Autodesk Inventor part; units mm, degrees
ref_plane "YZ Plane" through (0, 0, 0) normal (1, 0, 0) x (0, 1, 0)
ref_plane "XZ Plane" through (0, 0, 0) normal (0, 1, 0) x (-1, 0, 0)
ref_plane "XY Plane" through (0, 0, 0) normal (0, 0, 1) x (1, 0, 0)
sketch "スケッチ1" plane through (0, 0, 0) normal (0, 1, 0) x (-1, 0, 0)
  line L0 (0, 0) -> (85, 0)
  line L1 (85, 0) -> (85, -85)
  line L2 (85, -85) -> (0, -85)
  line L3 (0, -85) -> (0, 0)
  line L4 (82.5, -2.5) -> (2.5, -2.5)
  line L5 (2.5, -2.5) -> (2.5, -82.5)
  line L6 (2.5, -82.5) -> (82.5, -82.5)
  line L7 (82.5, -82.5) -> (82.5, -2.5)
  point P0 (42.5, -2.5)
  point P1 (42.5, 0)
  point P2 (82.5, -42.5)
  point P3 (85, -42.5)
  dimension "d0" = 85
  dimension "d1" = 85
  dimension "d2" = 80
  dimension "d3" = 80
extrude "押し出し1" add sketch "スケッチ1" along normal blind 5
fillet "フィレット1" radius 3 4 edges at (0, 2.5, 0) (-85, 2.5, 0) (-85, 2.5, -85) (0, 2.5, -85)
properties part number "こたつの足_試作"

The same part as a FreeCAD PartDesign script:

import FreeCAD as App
import Part
import Sketcher
from FreeCAD import Vector
Q = App.Units.Quantity


def edges_at(feature, points):
    """Names of the edges that pass closest to the given points."""
    edges = feature.Shape.Edges
    near = lambda p: min(range(len(edges)), key=lambda i: edges[i].distToShape(Part.Vertex(*p))[0])
    return sorted({f"Edge{near(p) + 1}" for p in points})

doc = App.newDocument("Part")
body = doc.addObject("PartDesign::Body", "Body")

sketch1 = body.newObject("Sketcher::SketchObject", "Sketch")
sketch1.AttachmentSupport = (doc.getObject("XZ_Plane"), [""])
sketch1.MapMode = "FlatFace"
sketch1.addGeometry([
    Part.LineSegment(Vector(-85, 0, 0), Vector(0, 0, 0)),
    Part.LineSegment(Vector(0, 0, 0), Vector(0, -85, 0)),
    Part.LineSegment(Vector(0, -85, 0), Vector(-85, -85, 0)),
    Part.LineSegment(Vector(-85, -85, 0), Vector(-85, 0, 0)),
    Part.LineSegment(Vector(-2, -2, 0), Vector(-82, -2, 0)),
    Part.LineSegment(Vector(-82, -2, 0), Vector(-82, -82, 0)),
    Part.LineSegment(Vector(-82, -82, 0), Vector(-2, -82, 0)),
    Part.LineSegment(Vector(-2, -82, 0), Vector(-2, -2, 0)),
], False)
sketch1.addConstraint([
    Sketcher.Constraint("Coincident", 0, 2, 1, 1),
    Sketcher.Constraint("Coincident", 1, 2, 2, 1),
    Sketcher.Constraint("Coincident", 2, 2, 3, 1),
    Sketcher.Constraint("Coincident", 3, 2, 0, 1),
    Sketcher.Constraint("Coincident", 4, 2, 5, 1),
    Sketcher.Constraint("Coincident", 5, 2, 6, 1),
    Sketcher.Constraint("Coincident", 6, 2, 7, 1),
    Sketcher.Constraint("Coincident", 7, 2, 4, 1),
    Sketcher.Constraint("Horizontal", 0),
    Sketcher.Constraint("Vertical", 1),
    Sketcher.Constraint("Horizontal", 2),
    Sketcher.Constraint("Vertical", 3),
    Sketcher.Constraint("Horizontal", 4),
    Sketcher.Constraint("Vertical", 5),
    Sketcher.Constraint("Horizontal", 6),
    Sketcher.Constraint("Vertical", 7),
    Sketcher.Constraint("Coincident", 0, 2, -1, 1),
    Sketcher.Constraint("Equal", 2, 1),
    Sketcher.Constraint("Equal", 6, 5),
    Sketcher.Constraint("DistanceX", 0, 1, 0, 2, Q("85 mm")),
    Sketcher.Constraint("DistanceX", 4, 2, 4, 1, Q("80 mm")),
    Sketcher.Constraint("DistanceX", 4, 2, -1, 1, Q("82.5 mm")),
    Sketcher.Constraint("DistanceY", 4, 2, -1, 1, Q("2.5 mm")),
])
pad1 = body.newObject("PartDesign::Pad", "Pad")
pad1.Profile = sketch1
pad1.Length = 5
pad1.Reversed = True
doc.recompute()

fillet = body.newObject("PartDesign::Fillet", "Fillet")
fillet.Base = (pad1, edges_at(pad1, [
    (0, 2.5, 0),
    (-85, 2.5, 0),
    (-85, 2.5, -85),
    (0, 2.5, -85),
]))
fillet.Radius = 3

doc.recompute()
